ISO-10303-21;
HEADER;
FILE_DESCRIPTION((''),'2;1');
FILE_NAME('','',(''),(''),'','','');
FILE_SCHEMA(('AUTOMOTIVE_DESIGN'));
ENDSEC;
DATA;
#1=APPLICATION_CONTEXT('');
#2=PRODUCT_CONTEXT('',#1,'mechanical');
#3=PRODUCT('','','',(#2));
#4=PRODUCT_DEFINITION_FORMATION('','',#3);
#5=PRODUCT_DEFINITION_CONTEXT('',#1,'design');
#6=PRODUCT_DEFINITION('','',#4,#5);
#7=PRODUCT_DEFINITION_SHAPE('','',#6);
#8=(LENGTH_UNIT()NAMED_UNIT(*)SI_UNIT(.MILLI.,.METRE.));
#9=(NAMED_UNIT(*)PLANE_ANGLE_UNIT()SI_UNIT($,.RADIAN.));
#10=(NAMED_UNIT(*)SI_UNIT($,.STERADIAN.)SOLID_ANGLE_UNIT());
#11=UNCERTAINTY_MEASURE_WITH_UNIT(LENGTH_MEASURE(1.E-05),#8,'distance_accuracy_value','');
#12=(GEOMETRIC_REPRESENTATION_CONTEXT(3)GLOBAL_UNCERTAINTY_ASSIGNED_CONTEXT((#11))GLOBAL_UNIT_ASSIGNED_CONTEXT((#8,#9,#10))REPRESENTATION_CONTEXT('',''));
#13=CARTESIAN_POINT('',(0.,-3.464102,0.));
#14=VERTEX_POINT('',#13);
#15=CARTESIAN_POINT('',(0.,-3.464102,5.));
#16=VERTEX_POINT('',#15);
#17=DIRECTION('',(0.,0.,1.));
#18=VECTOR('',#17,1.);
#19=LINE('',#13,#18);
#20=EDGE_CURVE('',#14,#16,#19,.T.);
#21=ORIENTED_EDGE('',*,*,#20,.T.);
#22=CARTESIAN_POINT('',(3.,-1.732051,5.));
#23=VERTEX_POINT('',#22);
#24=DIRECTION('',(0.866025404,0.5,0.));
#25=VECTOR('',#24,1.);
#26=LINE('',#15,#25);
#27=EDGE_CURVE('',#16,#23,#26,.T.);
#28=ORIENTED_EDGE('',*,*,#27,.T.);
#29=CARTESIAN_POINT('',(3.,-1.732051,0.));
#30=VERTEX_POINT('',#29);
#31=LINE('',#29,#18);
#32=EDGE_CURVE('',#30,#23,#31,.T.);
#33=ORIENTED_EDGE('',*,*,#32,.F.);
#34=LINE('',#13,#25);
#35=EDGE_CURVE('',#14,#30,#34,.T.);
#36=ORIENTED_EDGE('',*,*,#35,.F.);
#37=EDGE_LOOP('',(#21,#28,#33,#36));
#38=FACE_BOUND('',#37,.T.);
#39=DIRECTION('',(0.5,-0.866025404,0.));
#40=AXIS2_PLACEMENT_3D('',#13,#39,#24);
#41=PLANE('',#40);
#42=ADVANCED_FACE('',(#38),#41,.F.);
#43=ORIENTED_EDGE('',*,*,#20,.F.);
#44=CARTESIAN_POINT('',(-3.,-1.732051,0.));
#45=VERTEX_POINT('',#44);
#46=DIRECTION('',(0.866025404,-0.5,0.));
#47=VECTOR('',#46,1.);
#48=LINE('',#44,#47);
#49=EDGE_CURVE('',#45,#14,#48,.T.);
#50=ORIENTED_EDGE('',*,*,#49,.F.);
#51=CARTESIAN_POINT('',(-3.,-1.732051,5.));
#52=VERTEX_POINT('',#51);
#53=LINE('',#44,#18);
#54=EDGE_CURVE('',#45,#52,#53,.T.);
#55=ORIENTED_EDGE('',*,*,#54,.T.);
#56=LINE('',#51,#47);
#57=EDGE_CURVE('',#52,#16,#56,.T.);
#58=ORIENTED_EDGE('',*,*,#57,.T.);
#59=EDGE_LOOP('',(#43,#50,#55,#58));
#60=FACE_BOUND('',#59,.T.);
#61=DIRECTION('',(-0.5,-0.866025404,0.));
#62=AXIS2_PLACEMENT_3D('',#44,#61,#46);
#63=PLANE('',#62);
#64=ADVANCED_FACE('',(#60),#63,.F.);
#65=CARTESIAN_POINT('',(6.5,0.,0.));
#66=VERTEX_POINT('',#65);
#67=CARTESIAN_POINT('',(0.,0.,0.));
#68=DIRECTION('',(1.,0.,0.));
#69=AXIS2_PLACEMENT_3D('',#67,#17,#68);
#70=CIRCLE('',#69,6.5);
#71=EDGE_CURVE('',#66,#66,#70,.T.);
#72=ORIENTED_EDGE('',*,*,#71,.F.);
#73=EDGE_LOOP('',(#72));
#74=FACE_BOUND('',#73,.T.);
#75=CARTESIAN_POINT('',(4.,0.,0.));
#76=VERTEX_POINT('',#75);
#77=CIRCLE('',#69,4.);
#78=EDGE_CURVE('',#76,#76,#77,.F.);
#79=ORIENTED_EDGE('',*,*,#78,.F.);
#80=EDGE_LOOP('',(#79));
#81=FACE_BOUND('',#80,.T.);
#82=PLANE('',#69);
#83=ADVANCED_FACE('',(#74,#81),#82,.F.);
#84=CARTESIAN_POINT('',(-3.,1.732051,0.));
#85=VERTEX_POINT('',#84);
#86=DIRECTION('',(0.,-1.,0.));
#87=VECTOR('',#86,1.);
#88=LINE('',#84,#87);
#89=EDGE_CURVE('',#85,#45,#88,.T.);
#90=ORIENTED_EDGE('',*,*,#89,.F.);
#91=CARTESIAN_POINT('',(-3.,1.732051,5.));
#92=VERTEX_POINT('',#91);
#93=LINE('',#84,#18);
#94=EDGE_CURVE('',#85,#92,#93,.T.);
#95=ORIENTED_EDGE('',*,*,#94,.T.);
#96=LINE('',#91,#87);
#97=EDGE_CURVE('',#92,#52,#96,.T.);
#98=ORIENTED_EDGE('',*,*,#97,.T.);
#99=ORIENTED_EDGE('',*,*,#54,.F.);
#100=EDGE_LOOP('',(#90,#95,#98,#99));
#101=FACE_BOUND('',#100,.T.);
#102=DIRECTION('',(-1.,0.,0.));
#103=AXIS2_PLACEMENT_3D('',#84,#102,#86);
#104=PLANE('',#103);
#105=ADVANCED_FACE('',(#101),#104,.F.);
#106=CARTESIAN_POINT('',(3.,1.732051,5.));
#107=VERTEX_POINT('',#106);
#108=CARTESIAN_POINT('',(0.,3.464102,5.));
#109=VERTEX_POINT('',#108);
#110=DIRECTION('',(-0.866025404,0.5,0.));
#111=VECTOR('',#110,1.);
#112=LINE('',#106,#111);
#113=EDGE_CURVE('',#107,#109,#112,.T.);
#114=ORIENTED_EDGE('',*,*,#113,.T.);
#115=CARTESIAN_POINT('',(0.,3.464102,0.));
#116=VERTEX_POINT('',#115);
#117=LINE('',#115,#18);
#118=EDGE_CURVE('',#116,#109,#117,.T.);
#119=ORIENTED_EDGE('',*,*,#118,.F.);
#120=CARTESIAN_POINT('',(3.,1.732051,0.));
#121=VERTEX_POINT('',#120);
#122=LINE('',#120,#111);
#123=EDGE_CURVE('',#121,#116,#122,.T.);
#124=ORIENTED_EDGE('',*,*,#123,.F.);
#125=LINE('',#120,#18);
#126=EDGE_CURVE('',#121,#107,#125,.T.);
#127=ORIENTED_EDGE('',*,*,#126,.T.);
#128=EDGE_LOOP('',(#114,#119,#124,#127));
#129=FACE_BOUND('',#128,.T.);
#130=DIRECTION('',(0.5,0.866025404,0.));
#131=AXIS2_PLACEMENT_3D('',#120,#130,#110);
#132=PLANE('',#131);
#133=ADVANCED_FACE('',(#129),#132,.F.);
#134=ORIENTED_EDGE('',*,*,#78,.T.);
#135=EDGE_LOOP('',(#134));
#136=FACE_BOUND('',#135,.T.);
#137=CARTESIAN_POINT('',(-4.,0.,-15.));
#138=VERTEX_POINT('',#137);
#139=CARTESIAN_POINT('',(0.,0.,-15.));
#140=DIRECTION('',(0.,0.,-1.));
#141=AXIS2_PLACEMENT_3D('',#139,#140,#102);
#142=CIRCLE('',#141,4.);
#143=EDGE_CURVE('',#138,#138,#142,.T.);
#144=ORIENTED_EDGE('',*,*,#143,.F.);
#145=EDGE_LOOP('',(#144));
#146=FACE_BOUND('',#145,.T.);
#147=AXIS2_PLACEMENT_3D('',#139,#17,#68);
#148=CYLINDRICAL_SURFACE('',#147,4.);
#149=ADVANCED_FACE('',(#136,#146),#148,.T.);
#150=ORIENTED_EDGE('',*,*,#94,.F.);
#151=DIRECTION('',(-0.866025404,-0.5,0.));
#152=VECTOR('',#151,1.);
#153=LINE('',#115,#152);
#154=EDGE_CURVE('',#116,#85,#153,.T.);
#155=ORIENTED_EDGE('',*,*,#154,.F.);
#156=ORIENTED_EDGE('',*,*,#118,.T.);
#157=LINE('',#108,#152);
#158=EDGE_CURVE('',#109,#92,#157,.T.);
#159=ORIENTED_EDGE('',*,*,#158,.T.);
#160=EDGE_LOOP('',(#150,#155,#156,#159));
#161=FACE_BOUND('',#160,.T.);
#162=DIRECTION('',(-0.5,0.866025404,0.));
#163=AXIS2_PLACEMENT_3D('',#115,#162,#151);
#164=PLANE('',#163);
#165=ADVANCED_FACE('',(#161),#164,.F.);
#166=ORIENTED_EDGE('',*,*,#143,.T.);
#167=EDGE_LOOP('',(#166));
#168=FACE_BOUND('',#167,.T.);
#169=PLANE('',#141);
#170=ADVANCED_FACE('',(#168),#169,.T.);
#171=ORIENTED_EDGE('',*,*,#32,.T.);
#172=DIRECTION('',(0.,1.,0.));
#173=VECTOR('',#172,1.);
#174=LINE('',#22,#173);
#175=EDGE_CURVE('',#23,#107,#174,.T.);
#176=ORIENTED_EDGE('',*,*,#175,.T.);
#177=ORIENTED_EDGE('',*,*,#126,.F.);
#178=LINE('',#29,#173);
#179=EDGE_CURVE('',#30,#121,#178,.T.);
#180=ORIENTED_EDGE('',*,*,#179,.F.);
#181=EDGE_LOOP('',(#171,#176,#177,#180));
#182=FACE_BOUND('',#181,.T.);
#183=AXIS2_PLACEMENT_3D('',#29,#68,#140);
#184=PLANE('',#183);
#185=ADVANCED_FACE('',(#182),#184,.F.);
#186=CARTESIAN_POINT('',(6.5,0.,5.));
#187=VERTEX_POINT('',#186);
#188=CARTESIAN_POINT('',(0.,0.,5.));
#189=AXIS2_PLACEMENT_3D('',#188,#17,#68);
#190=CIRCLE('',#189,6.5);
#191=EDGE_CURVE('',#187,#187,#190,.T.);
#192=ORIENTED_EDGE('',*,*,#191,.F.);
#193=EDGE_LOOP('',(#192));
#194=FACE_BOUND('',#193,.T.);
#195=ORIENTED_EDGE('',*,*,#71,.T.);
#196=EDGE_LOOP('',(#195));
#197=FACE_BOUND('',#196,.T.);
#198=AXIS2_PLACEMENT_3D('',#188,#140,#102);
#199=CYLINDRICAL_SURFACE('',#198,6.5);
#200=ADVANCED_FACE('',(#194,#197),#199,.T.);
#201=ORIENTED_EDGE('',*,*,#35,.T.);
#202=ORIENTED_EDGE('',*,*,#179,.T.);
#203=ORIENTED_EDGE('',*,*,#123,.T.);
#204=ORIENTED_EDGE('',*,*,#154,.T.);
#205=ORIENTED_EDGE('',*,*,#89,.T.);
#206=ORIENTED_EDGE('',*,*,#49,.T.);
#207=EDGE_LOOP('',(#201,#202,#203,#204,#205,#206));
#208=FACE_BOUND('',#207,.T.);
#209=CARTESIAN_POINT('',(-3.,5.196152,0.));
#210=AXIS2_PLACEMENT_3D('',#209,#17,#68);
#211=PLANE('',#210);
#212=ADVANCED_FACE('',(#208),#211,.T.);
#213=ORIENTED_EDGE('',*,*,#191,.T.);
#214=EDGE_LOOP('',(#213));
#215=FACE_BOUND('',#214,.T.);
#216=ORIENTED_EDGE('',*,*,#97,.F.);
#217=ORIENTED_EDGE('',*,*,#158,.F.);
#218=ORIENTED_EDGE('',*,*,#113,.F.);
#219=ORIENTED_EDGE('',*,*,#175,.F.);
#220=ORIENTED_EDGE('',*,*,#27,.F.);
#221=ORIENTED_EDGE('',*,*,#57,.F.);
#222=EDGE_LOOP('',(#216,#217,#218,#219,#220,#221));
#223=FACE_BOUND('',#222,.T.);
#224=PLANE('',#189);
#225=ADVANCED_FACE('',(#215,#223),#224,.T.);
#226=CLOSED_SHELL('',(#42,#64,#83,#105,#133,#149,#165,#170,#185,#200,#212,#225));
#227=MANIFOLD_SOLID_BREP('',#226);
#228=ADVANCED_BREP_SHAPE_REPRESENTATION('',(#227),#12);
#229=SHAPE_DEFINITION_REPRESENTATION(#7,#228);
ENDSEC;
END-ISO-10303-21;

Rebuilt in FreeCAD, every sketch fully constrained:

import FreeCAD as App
import Part
import Sketcher
Q = App.Units.Quantity


def add_polygon(sketch, points):
    """Adds a closed chain of lines whose ends are joined by coincident constraints."""
    first, n = sketch.GeometryCount, len(points)
    for a, b in zip(points, points[1:] + points[:1]):
        sketch.addGeometry(Part.LineSegment(App.Vector(*a, 0), App.Vector(*b, 0)), False)
    for i in range(n):
        sketch.addConstraint(Sketcher.Constraint("Coincident", first + i, 2, first + (i + 1) % n, 1))

doc = App.newDocument("Part")
body = doc.addObject("PartDesign::Body", "Body")

# Sketch on XY plane
sketch1 = body.newObject("Sketcher::SketchObject", "Sketch")
sketch1.AttachmentSupport = (doc.getObject("XY_Plane"), [""])
sketch1.MapMode = "FlatFace"
sketch1.addGeometry(Part.Circle(App.Vector(0, 0, 0), App.Vector(0, 0, 1), 6), False)
sketch1.addConstraint(Sketcher.Constraint("Coincident", 0, 3, -1, 1))
sketch1.addConstraint(Sketcher.Constraint("Diameter", 0, Q("13 mm")))
pad1 = body.newObject("PartDesign::Pad", "Pad")
pad1.Profile = sketch1
pad1.Length = 5

# Sketch on XY plane
sketch2 = body.newObject("Sketcher::SketchObject", "Sketch001")
sketch2.AttachmentSupport = (doc.getObject("XY_Plane"), [""])
sketch2.MapMode = "FlatFace"
sketch2.addGeometry(Part.Circle(App.Vector(0, 0, 0), App.Vector(0, 0, 1), 4), False)
sketch2.addConstraint(Sketcher.Constraint("Coincident", 0, 3, -1, 1))
sketch2.addConstraint(Sketcher.Constraint("Diameter", 0, Q("8 mm")))
pad2 = body.newObject("PartDesign::Pad", "Pad001")
pad2.Profile = sketch2
pad2.Length = 15
pad2.Reversed = True

# Sketch on XY plane
sketch3 = body.newObject("Sketcher::SketchObject", "Sketch002")
sketch3.AttachmentSupport = (doc.getObject("XY_Plane"), [""])
sketch3.MapMode = "FlatFace"
sketch3.AttachmentOffset = App.Placement(App.Vector(0, 0, 5), App.Rotation())
add_polygon(sketch3, [(0, 3.5), (-3, 1.7), (-3, -1.7), (0, -3.5), (3, -1.7), (3, 1.7)])  # lines 0-5
sketch3.addConstraint(Sketcher.Constraint("Vertical", 1))
sketch3.addConstraint(Sketcher.Constraint("Vertical", 4))
sketch3.addConstraint(Sketcher.Constraint("Symmetric", 0, 2, 3, 2, -1, 1))
sketch3.addConstraint(Sketcher.Constraint("Symmetric", 2, 2, 5, 2, -1, 1))
sketch3.addConstraint(Sketcher.Constraint("PointOnObject", 2, 2, -2))
sketch3.addConstraint(Sketcher.Constraint("Parallel", 2, 5))
sketch3.addConstraint(Sketcher.Constraint("Horizontal", 1, 2, 3, 2))
sketch3.addConstraint(Sketcher.Constraint("Angle", 0, Q("-150 deg")))
sketch3.addConstraint(Sketcher.Constraint("DistanceX", 0, 2, -1, 1, Q("3 mm")))
sketch3.addConstraint(Sketcher.Constraint("DistanceY", 1, 2, 1, 1, Q("3.464102 mm")))
pocket1 = body.newObject("PartDesign::Pocket", "Pocket")
pocket1.Profile = sketch3
pocket1.Length = 5

doc.recompute()
